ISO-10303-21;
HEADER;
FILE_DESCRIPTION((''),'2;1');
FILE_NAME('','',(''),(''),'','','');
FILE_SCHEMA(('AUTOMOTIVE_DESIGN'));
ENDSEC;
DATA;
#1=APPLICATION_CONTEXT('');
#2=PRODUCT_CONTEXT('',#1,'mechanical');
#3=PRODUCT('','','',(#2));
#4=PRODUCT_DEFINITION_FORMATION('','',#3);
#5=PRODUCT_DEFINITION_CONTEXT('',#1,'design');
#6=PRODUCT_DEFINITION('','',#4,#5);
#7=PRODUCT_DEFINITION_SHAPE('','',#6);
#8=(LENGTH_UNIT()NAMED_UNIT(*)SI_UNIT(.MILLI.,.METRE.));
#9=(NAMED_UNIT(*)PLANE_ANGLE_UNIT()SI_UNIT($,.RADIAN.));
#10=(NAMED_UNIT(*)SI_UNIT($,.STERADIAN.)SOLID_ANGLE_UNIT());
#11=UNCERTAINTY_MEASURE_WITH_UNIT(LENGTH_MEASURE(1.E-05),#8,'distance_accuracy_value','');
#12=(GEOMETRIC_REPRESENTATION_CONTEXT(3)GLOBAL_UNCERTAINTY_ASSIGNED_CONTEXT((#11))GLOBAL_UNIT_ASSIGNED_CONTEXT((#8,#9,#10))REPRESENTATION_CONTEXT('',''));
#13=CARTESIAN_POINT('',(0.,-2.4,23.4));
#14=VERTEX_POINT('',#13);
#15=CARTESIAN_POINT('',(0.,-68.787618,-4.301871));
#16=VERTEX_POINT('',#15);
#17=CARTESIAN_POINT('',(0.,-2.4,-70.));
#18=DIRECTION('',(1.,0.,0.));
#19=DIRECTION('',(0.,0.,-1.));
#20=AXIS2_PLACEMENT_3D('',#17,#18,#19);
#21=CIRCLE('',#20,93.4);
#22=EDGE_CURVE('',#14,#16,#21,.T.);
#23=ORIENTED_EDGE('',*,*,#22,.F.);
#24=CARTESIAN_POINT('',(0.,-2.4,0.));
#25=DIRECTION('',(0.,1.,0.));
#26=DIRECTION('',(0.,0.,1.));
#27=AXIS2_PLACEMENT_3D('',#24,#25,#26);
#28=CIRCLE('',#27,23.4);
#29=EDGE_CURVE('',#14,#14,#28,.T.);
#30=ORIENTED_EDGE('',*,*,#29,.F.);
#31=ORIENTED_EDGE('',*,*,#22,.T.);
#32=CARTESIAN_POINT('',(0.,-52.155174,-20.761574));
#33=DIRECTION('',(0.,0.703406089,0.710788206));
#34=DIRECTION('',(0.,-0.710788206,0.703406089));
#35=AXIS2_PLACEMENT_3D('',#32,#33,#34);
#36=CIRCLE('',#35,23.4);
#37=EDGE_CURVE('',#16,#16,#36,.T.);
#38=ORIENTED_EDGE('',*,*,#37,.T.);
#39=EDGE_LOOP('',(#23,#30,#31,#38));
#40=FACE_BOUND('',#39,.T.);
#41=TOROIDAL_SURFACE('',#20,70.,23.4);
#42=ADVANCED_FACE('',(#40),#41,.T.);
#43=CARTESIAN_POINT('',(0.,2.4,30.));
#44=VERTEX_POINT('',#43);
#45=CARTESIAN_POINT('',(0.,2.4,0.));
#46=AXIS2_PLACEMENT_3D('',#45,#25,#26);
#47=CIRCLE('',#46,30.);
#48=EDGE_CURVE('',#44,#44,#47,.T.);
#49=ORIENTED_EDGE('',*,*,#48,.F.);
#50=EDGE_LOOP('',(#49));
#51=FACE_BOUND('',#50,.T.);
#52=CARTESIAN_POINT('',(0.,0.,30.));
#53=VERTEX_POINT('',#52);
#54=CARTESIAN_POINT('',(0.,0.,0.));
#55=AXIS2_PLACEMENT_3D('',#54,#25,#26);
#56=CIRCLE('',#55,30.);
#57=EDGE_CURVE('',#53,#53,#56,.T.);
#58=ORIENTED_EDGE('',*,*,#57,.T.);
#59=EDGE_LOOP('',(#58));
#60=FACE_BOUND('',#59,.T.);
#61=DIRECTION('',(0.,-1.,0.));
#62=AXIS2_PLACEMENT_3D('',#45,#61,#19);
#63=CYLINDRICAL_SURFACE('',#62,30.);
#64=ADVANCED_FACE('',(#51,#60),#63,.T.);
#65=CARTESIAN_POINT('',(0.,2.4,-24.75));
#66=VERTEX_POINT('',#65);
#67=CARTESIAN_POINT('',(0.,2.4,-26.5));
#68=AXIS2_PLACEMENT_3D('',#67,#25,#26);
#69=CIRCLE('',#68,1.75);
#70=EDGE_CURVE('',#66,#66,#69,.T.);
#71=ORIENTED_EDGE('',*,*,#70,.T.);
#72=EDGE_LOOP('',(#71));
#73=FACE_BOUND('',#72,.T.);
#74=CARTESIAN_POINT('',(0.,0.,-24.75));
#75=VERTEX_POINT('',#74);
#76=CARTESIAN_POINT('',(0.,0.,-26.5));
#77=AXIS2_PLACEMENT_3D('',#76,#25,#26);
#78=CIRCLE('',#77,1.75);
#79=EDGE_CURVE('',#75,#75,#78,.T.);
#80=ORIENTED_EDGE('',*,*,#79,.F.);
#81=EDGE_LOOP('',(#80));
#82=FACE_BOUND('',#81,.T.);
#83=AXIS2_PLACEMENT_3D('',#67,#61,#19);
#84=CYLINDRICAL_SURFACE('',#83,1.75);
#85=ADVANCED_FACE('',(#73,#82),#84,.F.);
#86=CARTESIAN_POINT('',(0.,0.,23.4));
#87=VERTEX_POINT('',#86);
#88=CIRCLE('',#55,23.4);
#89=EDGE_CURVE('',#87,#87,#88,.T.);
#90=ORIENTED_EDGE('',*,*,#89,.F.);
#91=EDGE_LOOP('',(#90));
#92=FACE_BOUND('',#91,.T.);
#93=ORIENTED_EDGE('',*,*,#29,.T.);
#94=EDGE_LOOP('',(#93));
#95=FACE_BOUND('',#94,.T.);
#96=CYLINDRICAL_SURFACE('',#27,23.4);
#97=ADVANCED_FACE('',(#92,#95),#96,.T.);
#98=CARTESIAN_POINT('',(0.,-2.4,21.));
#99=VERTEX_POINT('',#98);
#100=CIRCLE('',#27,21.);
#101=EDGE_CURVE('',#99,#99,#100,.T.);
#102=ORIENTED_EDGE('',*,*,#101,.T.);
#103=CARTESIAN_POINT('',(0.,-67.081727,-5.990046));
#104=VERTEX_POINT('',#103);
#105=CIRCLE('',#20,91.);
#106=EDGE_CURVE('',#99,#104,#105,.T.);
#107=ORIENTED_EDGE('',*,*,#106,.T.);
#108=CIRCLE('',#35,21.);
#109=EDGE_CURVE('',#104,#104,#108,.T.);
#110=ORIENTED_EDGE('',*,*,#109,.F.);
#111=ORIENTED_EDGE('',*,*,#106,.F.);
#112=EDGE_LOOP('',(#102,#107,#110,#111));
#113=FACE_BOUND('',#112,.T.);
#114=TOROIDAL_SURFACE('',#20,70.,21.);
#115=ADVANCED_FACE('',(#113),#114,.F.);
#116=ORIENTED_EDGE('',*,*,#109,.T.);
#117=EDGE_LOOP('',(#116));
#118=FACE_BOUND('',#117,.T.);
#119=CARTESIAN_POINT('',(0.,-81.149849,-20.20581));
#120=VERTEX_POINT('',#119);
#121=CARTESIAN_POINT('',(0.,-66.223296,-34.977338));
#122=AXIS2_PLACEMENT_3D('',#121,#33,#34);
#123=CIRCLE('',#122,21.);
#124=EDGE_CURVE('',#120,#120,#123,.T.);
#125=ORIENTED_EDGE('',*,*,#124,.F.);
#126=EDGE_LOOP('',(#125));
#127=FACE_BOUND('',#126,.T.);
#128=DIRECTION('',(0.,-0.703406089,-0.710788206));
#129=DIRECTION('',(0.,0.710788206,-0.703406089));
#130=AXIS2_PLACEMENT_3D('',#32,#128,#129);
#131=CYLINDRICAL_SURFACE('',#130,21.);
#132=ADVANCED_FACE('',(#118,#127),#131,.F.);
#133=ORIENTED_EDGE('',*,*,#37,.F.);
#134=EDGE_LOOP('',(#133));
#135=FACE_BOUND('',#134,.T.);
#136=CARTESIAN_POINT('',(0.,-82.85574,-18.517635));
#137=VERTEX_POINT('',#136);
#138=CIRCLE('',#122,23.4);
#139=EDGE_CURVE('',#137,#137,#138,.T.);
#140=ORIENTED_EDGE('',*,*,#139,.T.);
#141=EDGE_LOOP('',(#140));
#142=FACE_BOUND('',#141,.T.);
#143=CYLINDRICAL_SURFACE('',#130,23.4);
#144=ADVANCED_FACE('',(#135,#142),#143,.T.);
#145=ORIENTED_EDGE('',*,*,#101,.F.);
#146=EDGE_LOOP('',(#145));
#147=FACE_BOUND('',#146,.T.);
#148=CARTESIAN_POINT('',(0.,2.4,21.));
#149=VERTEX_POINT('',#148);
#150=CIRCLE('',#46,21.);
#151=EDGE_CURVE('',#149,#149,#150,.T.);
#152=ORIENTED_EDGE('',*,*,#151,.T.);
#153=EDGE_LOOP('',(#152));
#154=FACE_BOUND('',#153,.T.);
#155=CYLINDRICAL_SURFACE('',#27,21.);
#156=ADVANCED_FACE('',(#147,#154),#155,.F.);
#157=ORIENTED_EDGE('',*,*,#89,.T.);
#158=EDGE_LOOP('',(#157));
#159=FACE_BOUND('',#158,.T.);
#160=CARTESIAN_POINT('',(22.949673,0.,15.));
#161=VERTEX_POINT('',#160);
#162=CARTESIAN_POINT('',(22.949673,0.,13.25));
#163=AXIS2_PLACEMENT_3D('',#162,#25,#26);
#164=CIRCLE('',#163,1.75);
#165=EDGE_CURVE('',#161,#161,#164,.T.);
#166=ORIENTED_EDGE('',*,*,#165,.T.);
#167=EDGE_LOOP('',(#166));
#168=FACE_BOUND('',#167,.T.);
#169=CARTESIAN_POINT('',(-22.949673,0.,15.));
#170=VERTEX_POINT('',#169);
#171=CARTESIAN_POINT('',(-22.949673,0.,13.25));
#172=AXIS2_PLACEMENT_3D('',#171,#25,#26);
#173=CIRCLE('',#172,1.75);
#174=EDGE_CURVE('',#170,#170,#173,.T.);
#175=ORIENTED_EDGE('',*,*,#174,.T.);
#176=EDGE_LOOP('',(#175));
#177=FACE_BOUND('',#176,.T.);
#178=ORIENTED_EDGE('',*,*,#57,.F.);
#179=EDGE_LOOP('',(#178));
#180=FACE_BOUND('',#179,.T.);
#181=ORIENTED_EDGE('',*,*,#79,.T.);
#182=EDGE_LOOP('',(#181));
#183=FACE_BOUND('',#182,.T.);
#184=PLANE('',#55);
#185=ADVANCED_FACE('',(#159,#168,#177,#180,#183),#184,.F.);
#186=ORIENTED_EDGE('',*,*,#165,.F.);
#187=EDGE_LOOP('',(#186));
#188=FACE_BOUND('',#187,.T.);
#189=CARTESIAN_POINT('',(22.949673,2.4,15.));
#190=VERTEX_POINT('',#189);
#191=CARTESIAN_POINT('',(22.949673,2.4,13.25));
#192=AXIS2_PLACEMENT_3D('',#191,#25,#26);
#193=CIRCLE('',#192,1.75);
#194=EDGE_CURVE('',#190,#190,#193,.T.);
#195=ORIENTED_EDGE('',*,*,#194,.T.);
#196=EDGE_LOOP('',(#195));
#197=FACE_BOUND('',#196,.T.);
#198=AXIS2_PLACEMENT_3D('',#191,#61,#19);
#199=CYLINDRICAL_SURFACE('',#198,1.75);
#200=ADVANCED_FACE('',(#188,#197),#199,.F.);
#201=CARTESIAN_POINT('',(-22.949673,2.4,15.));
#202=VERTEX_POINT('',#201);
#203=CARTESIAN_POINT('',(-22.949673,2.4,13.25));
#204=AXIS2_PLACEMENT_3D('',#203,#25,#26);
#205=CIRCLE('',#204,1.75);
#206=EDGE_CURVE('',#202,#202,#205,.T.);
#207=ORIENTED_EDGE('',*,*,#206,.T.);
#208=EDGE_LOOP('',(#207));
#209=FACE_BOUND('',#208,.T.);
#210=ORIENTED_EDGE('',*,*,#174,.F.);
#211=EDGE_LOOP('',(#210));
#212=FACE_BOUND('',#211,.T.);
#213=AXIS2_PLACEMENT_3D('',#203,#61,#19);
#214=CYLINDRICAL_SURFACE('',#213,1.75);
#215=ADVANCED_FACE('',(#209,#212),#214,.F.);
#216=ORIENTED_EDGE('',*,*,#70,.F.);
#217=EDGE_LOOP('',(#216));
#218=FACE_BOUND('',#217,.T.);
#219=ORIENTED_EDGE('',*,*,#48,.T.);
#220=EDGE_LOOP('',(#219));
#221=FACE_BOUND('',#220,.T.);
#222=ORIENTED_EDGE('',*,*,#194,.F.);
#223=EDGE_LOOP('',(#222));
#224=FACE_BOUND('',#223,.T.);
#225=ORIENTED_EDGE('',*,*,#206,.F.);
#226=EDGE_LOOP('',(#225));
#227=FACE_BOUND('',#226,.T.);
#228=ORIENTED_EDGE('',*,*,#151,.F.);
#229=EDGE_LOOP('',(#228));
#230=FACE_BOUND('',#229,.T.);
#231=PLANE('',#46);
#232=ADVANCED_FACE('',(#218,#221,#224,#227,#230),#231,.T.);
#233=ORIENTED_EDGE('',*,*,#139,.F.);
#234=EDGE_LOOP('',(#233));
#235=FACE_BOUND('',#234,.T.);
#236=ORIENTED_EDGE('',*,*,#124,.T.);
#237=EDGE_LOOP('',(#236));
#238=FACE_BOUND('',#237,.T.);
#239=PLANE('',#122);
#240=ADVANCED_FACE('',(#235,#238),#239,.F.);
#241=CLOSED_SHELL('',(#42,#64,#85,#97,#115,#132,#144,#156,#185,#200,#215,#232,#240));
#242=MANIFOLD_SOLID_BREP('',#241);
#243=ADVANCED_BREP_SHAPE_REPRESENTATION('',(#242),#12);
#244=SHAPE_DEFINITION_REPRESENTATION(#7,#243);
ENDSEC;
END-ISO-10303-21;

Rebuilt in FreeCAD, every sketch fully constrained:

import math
import FreeCAD as App
import Part
import Sketcher
from FreeCAD import Vector
Q = App.Units.Quantity

doc = App.newDocument("Part")
body = doc.addObject("PartDesign::Body", "Body")

sketch1 = body.newObject("Sketcher::SketchObject", "Sketch")
sketch1.AttachmentSupport = (doc.getObject("XZ_Plane"), [""])
sketch1.MapMode = "FlatFace"
sketch1.addGeometry(Part.Circle(Vector(0, 0, 0), Vector(0, 0, 1), 23), False)
sketch1.addGeometry(Part.Circle(Vector(0, 0, 0), Vector(0, 0, 1), 21), False)
sketch1.addConstraint(Sketcher.Constraint("Coincident", 0, 3, -1, 1))
sketch1.addConstraint(Sketcher.Constraint("Coincident", 1, 3, -1, 1))
sketch1.addConstraint(Sketcher.Constraint("Diameter", 1, Q("42 mm")))
sketch1.addConstraint(Sketcher.Constraint("Diameter", 0, Q("46.8 mm")))

sketch2 = body.newObject("Sketcher::SketchObject", "Sketch001")
sketch2.AttachmentSupport = (doc.getObject("YZ_Plane"), [""])
sketch2.MapMode = "FlatFace"
sketch2.addGeometry(Part.LineSegment(Vector(0, 0, 0), Vector(-2.4, 0, 0)), False)
sketch2.addGeometry(Part.ArcOfCircle(Part.Circle(Vector(-2.4, -70, 0), Vector(0, 0, 1), 70), math.radians(90), math.radians(135)), False)
sketch2.addGeometry(Part.LineSegment(Vector(-52.2, -20.8, 0), Vector(-66.2, -35, 0)), False)
sketch2.addConstraint(Sketcher.Constraint("Tangent", 0, 2, 1, 1))
sketch2.addConstraint(Sketcher.Constraint("Tangent", 1, 2, 2, 1))
sketch2.addConstraint(Sketcher.Constraint("Horizontal", 0))
sketch2.addConstraint(Sketcher.Constraint("Coincident", 0, 1, -1, 1))
sketch2.addConstraint(Sketcher.Constraint("Radius", 1, Q("70 mm")))
sketch2.addConstraint(Sketcher.Constraint("Distance", 2, Q("20 mm")))
sketch2.addConstraint(Sketcher.Constraint("DistanceX", 0, 2, 0, 1, Q("2.4 mm")))
sketch2.addConstraint(Sketcher.Constraint("DistanceX", 2, 2, 1, 2, Q("14.068122 mm")))
doc.recompute()

additivepipe = body.newObject("PartDesign::AdditivePipe", "AdditivePipe")
additivepipe.Profile = sketch1
additivepipe.Spine = (sketch2, ["Edge1", "Edge2", "Edge3"])

sketch3 = body.newObject("Sketcher::SketchObject", "Sketch002")
sketch3.AttachmentSupport = (doc.getObject("XZ_Plane"), [""])
sketch3.MapMode = "FlatFace"
sketch3.addGeometry(Part.Circle(Vector(0, 0, 0), Vector(0, 0, 1), 30), False)
sketch3.addGeometry(Part.Circle(Vector(0, -26.5, 0), Vector(0, 0, 1), 1.8), False)
sketch3.addGeometry(Part.Circle(Vector(-22.9, 13.2, 0), Vector(0, 0, 1), 1.8), False)
sketch3.addGeometry(Part.Circle(Vector(0, 0, 0), Vector(0, 0, 1), 21), False)
sketch3.addGeometry(Part.Circle(Vector(22.9, 13.2, 0), Vector(0, 0, 1), 1.8), False)
sketch3.addConstraint(Sketcher.Constraint("Coincident", 0, 3, -1, 1))
sketch3.addConstraint(Sketcher.Constraint("Coincident", 3, 3, -1, 1))
sketch3.addConstraint(Sketcher.Constraint("Equal", 1, 2))
sketch3.addConstraint(Sketcher.Constraint("Equal", 2, 4))
sketch3.addConstraint(Sketcher.Constraint("Symmetric", 2, 3, 4, 3, -2))
sketch3.addConstraint(Sketcher.Constraint("PointOnObject", 1, 3, -2))
sketch3.addConstraint(Sketcher.Constraint("Diameter", 0, Q("60 mm")))
sketch3.addConstraint(Sketcher.Constraint("Diameter", 3, Q("42 mm")))
sketch3.addConstraint(Sketcher.Constraint("Diameter", 1, Q("3.5 mm")))
sketch3.addConstraint(Sketcher.Constraint("DistanceY", 1, 3, -1, 1, Q("26.5 mm")))
sketch3.addConstraint(Sketcher.Constraint("DistanceY", -1, 1, 2, 3, Q("13.25 mm")))
sketch3.addConstraint(Sketcher.Constraint("DistanceX", 2, 3, -1, 1, Q("22.949673 mm")))
pad1 = body.newObject("PartDesign::Pad", "Pad")
pad1.Profile = sketch3
pad1.Length = 2.4
pad1.Reversed = True

doc.recompute()
